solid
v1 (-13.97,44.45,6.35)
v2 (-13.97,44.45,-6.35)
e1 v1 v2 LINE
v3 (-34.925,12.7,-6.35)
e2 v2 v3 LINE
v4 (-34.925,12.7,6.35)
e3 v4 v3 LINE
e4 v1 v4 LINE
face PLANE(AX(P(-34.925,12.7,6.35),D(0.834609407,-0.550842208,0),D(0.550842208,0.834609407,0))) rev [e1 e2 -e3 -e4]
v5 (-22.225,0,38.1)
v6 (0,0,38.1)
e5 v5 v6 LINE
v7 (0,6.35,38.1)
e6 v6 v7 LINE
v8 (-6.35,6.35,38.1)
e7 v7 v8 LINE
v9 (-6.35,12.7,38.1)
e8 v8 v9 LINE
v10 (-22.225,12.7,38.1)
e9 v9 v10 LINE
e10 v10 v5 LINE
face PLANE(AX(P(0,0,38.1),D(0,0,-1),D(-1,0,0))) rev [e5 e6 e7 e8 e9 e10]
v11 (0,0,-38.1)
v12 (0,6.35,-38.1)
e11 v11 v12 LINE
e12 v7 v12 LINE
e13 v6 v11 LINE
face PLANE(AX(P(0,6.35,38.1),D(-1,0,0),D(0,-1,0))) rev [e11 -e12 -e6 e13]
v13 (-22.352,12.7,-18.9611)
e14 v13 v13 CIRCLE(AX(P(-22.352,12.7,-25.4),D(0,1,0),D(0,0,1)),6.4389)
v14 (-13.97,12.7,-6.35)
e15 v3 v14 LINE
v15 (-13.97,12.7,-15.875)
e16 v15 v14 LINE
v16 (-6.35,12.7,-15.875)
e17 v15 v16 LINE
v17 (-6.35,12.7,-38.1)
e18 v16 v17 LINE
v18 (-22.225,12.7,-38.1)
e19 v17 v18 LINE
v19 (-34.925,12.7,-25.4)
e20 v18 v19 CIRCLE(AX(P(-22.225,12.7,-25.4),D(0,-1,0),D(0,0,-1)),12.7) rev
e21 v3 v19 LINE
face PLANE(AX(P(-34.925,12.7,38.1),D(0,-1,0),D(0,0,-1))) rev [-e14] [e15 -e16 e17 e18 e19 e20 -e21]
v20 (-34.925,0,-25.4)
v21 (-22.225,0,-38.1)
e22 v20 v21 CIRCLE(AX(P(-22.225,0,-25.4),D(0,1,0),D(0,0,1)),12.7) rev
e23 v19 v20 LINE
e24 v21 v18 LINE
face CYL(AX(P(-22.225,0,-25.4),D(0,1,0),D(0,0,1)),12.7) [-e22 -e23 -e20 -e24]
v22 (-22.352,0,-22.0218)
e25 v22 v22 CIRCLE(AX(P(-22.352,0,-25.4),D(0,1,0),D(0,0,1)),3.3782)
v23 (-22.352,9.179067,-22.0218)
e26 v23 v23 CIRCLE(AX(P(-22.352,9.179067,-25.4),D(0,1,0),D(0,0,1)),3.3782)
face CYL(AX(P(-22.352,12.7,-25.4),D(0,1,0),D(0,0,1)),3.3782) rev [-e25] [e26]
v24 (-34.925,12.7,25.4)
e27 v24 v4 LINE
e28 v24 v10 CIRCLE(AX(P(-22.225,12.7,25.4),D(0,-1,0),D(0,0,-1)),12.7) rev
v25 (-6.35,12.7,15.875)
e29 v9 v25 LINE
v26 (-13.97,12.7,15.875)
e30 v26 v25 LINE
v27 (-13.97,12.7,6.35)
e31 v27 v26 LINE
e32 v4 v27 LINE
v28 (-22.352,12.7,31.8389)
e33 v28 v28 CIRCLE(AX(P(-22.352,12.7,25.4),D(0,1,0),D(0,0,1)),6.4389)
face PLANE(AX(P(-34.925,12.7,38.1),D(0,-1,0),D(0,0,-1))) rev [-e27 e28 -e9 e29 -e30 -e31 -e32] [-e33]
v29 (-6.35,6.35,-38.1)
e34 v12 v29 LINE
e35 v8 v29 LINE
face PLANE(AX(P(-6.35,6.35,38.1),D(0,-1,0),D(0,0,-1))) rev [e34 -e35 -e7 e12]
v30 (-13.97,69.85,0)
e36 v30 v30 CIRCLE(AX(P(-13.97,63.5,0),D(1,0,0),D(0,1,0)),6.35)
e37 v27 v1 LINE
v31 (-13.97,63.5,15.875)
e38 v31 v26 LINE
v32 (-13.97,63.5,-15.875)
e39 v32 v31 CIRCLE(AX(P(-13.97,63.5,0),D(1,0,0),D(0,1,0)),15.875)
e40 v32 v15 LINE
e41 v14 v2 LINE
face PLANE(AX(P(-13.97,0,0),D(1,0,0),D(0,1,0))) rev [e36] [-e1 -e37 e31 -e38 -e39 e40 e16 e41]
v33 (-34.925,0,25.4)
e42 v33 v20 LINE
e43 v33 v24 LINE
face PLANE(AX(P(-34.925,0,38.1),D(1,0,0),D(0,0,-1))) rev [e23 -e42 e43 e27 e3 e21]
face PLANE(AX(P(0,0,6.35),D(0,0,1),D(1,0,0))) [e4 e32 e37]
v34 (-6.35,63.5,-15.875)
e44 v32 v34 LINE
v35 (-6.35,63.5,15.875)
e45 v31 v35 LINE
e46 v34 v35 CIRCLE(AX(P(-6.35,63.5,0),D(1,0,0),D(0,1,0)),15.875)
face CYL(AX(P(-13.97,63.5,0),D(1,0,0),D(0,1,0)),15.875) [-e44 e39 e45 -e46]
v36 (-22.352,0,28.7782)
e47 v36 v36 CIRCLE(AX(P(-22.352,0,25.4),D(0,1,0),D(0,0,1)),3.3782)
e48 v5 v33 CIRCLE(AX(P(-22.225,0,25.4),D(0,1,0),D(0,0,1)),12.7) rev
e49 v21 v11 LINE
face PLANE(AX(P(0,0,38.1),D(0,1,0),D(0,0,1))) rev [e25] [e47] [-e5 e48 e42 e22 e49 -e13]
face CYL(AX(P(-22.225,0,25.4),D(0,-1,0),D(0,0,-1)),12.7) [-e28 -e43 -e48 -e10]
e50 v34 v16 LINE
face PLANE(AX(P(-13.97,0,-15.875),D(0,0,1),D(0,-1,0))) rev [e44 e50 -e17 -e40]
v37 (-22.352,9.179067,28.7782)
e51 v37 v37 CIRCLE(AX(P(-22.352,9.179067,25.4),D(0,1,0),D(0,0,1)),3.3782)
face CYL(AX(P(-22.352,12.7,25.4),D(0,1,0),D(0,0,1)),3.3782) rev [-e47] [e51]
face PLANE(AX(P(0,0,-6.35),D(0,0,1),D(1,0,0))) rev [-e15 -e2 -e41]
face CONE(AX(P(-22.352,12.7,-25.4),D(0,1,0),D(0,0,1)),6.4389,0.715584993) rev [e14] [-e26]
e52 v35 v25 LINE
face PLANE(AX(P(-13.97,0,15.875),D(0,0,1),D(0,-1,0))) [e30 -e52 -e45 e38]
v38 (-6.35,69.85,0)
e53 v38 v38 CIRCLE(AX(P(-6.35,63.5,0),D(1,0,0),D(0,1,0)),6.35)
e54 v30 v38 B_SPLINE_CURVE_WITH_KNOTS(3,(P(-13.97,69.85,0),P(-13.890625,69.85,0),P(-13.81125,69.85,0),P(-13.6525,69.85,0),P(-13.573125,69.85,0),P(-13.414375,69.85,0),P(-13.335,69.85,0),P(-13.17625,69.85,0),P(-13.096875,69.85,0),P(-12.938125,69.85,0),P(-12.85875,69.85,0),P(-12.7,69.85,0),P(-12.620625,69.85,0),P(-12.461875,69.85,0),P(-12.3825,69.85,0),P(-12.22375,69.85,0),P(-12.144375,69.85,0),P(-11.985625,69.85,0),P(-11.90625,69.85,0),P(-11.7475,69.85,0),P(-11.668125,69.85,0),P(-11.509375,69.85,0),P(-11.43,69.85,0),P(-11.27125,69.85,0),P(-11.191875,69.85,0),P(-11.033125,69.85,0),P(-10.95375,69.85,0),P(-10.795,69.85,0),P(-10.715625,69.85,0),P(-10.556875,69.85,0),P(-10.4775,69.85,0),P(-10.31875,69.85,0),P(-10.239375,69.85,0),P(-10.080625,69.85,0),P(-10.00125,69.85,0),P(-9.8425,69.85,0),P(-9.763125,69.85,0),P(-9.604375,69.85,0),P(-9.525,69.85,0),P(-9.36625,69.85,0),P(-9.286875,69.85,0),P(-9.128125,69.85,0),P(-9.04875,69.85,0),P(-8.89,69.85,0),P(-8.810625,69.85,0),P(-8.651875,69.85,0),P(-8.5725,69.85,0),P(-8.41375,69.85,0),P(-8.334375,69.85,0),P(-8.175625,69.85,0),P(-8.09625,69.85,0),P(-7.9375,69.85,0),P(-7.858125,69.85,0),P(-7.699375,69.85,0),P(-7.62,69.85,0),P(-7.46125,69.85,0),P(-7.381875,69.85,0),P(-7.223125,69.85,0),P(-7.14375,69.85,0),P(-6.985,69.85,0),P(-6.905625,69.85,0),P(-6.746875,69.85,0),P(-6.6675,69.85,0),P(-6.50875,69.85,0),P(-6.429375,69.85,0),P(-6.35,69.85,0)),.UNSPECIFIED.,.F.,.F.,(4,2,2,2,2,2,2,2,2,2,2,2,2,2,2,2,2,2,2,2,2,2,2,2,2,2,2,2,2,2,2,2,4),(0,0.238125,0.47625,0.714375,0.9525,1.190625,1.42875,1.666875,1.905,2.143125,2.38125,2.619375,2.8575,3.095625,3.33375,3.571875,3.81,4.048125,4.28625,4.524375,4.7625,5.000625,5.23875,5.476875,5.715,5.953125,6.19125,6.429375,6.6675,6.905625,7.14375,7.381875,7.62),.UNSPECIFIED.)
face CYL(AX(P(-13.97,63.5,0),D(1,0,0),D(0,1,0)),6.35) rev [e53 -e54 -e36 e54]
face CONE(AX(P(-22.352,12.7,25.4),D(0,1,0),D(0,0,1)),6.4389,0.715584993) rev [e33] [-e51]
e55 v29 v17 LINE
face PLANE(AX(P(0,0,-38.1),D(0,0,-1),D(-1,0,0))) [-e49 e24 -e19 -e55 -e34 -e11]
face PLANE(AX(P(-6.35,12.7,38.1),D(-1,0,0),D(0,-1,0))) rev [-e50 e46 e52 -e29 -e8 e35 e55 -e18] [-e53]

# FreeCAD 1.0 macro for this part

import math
import FreeCAD as App
import Part
import Sketcher
Q = App.Units.Quantity


def edges_at(feature, points):
    """Names of the edges that pass closest to the given points."""
    edges = feature.Shape.Edges
    near = lambda p: min(range(len(edges)), key=lambda i: edges[i].distToShape(Part.Vertex(*p))[0])
    return sorted({f"Edge{near(p) + 1}" for p in points})


def add_polygon(sketch, points):
    """Adds a closed chain of lines whose ends are joined by coincident constraints."""
    first, n = sketch.GeometryCount, len(points)
    for a, b in zip(points, points[1:] + points[:1]):
        sketch.addGeometry(Part.LineSegment(App.Vector(*a, 0), App.Vector(*b, 0)), False)
    for i in range(n):
        sketch.addConstraint(Sketcher.Constraint("Coincident", first + i, 2, first + (i + 1) % n, 1))

doc = App.newDocument("Part")
params = doc.addObject("Spreadsheet::Sheet", "Params")
for row, (alias, value) in enumerate([
    ("sketch1_height", "0.5 in"),
    ("sketch1_width", "1.375 in"),
    ("pad1_length", "3 in"),
    ("sketch2_diameter", "0.5 in"),
    ("sketch2_width", "2 in"),
    ("sketch2_radius", "0.625 in"),
    ("pad2_length", "0.3 in"),
    ("sketch3_height", "1.25 in"),
    ("sketch3_width", "0.825 in"),
    ("pad3_length", "0.5 in"),
    ("fillet_radius", "0.5 in"),
    ("sketch4_diameter", "0.266 in"),
    ("hole_diameter", "0.266 in"),
    ("hole_csink_diameter", "0.507 in"),
], start=1):
    params.set(f"A{row}", alias)
    params.set(f"B{row}", "=" + value)
    params.setAlias(f"B{row}", alias)

body = doc.addObject("PartDesign::Body", "Body")

# Sketch on XY plane
sketch1 = doc.addObject("Sketcher::SketchObject", "Sketch")
body.addObject(sketch1)
sketch1.AttachmentSupport = (doc.XY_Plane, [""])
sketch1.MapMode = "FlatFace"
add_polygon(sketch1, [(-35, 0), (0, 0), (0, 6), (-6, 6), (-6, 13), (-35, 13)])  # lines 0-5
sketch1.addConstraint([
    Sketcher.Constraint("Horizontal", 0),
    Sketcher.Constraint("Vertical", 1),
    Sketcher.Constraint("Horizontal", 2),
    Sketcher.Constraint("Vertical", 3),
    Sketcher.Constraint("Horizontal", 4),
    Sketcher.Constraint("Vertical", 5),
    Sketcher.Constraint("Coincident", 0, 2, -1, 1),
    Sketcher.Constraint("Equal", 2, 1),
    Sketcher.Constraint("Equal", 1, 3),
    Sketcher.Constraint("DistanceY", 5, 2, 5, 1, Q("0.5 in")),
    Sketcher.Constraint("DistanceX", 0, 1, 0, 2, Q("1.375 in")),
])
sketch1.setExpression("Constraints[15]", "Params.sketch1_height")
sketch1.setExpression("Constraints[16]", "Params.sketch1_width")
pad1 = doc.addObject("PartDesign::Pad", "Pad")
body.addObject(pad1)
pad1.Profile = sketch1
pad1.setExpression("Length", "Params.pad1_length")
pad1.Midplane = True

# Sketch on YZ plane
sketch2 = doc.addObject("Sketcher::SketchObject", "Sketch001")
body.addObject(sketch2)
sketch2.AttachmentSupport = (doc.YZ_Plane, [""])
sketch2.MapMode = "FlatFace"
sketch2.AttachmentOffset = App.Placement(App.Vector(0, 0, -0.25 * 25.4), App.Rotation())
sketch2.addGeometry([
    Part.LineSegment(App.Vector(64, 16, 0), App.Vector(13, 16, 0)),  # 0
    Part.LineSegment(App.Vector(13, 16, 0), App.Vector(13, -16, 0)),  # 1
    Part.LineSegment(App.Vector(13, -16, 0), App.Vector(64, -16, 0)),  # 2
    Part.ArcOfCircle(Part.Circle(App.Vector(64, 0, 0), App.Vector(0, 0, 1), 16), math.radians(-90), math.radians(90)),  # 3
    Part.Circle(App.Vector(64, 0, 0), App.Vector(0, 0, 1), 6),  # 4
], False)
sketch2.addConstraint([
    Sketcher.Constraint("Coincident", 0, 2, 1, 1),
    Sketcher.Constraint("Coincident", 1, 2, 2, 1),
    Sketcher.Constraint("Tangent", 2, 2, 3, 1),
    Sketcher.Constraint("Tangent", 3, 2, 0, 1),
    Sketcher.Constraint("Horizontal", 0),
    Sketcher.Constraint("Vertical", 1),
    Sketcher.Constraint("Horizontal", 2),
    Sketcher.Constraint("Coincident", 4, 3, 3, 3),
    Sketcher.Constraint("PointOnObject", 3, 3, -1),
    Sketcher.Constraint("Diameter", 4, Q("0.5 in")),
    Sketcher.Constraint("DistanceX", 0, 2, 0, 1, Q("2 in")),
    Sketcher.Constraint("Radius", 3, Q("0.625 in")),
    Sketcher.Constraint("DistanceX", -1, 1, 3, 3, Q("2.5 in")),
])
sketch2.setExpression("Constraints[9]", "Params.sketch2_diameter")
sketch2.setExpression("Constraints[10]", "Params.sketch2_width")
sketch2.setExpression("Constraints[11]", "Params.sketch2_radius")
pad2 = doc.addObject("PartDesign::Pad", "Pad001")
body.addObject(pad2)
pad2.Profile = sketch2
pad2.setExpression("Length", "Params.pad2_length")
pad2.Reversed = True

# Sketch on XY plane
sketch3 = doc.addObject("Sketcher::SketchObject", "Sketch002")
body.addObject(sketch3)
sketch3.AttachmentSupport = (doc.XY_Plane, [""])
sketch3.MapMode = "FlatFace"
add_polygon(sketch3, [(-14, 13), (-14, 44), (-35, 13)])  # lines 0-2
sketch3.addConstraint([
    Sketcher.Constraint("Vertical", 0),
    Sketcher.Constraint("Horizontal", 2),
    Sketcher.Constraint("DistanceY", 0, 1, 0, 2, Q("1.25 in")),
    Sketcher.Constraint("DistanceY", -1, 1, 1, 2, Q("0.5 in")),
    Sketcher.Constraint("DistanceX", 2, 1, 2, 2, Q("0.825 in")),
    Sketcher.Constraint("DistanceX", 0, 2, -1, 1, Q("0.55 in")),
])
sketch3.setExpression("Constraints[5]", "Params.sketch3_height")
sketch3.setExpression("Constraints[7]", "Params.sketch3_width")
pad3 = doc.addObject("PartDesign::Pad", "Pad002")
body.addObject(pad3)
pad3.Profile = sketch3
pad3.setExpression("Length", "Params.pad3_length")
pad3.Midplane = True
doc.recompute()

fillet = doc.addObject("PartDesign::Fillet", "Fillet")
body.addObject(fillet)
fillet.Base = (pad3, edges_at(pad3, [(-34.925, 6.35, 38.1), (-34.925, 6.35, -38.1)]))
fillet.setExpression("Radius", "Params.fillet_radius")

# Sketch on XZ plane
sketch4 = doc.addObject("Sketcher::SketchObject", "Sketch003")
body.addObject(sketch4)
sketch4.AttachmentSupport = (doc.XZ_Plane, [""])
sketch4.MapMode = "FlatFace"
sketch4.AttachmentOffset = App.Placement(App.Vector(0, 0, -0.5 * 25.4), App.Rotation())
sketch4.addGeometry([
    Part.Circle(App.Vector(-22.4, -25.4, 0), App.Vector(0, 0, 1), 3.4),
    Part.Circle(App.Vector(-22.4, 25.4, 0), App.Vector(0, 0, 1), 3.4),
], False)
sketch4.addConstraint([
    Sketcher.Constraint("Equal", 0, 1),
    Sketcher.Constraint("Symmetric", 0, 3, 1, 3, -1),
    Sketcher.Constraint("Diameter", 0, Q("0.266 in")),
    Sketcher.Constraint("DistanceY", 0, 3, -1, 1, Q("1 in")),
    Sketcher.Constraint("DistanceX", 0, 3, -1, 1, Q("0.88 in")),
])
sketch4.setExpression("Constraints[2]", "Params.sketch4_diameter")
doc.recompute()
hole = doc.addObject("PartDesign::Hole", "Hole")
body.addObject(hole)
hole.Profile = sketch4
hole.ThreadType = "None"
hole.setExpression("Diameter", "Params.hole_diameter")
hole.DepthType = "ThroughAll"
hole.HoleCutType = "Countersink"
hole.setExpression("HoleCutDiameter", "Params.hole_csink_diameter")
hole.HoleCutCountersinkAngle = 82
hole.Reversed = True

doc.recompute()
